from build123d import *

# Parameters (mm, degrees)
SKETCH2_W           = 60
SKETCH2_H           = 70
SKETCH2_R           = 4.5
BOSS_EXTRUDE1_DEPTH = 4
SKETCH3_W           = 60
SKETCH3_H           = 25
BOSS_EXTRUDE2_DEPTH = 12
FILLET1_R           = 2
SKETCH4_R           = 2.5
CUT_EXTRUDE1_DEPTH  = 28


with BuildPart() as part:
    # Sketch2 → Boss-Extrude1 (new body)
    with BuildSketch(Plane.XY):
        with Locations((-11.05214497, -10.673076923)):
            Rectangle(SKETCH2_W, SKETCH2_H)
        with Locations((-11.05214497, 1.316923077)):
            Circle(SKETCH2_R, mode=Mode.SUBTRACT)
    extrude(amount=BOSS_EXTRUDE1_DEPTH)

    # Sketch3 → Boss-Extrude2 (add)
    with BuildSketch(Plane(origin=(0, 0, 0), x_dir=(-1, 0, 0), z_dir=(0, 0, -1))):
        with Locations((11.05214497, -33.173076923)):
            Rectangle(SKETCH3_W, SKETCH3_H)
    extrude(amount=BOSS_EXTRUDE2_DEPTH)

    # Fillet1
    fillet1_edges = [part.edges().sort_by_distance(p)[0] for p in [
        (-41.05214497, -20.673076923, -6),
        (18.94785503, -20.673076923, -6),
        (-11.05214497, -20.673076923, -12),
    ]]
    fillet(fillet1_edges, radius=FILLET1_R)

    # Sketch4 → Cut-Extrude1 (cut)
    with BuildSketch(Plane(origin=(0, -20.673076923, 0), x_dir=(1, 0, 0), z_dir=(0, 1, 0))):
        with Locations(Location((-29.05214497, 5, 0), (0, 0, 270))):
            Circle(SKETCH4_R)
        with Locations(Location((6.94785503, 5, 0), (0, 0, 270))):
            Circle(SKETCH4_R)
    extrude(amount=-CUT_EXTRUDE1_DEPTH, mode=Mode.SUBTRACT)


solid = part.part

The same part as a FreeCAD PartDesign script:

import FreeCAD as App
import Part
import Sketcher
from FreeCAD import Vector


def edges_at(feature, points):
    """Names of the edges that pass closest to the given points."""
    edges = feature.Shape.Edges
    near = lambda p: min(range(len(edges)), key=lambda i: edges[i].distToShape(Part.Vertex(*p))[0])
    return sorted({f"Edge{near(p) + 1}" for p in points})


def add_polygon(sketch, points):
    """Adds a closed chain of lines whose ends are joined by coincident constraints."""
    first, n = sketch.GeometryCount, len(points)
    for a, b in zip(points, points[1:] + points[:1]):
        sketch.addGeometry(Part.LineSegment(App.Vector(*a, 0), App.Vector(*b, 0)), False)
    for i in range(n):
        sketch.addConstraint(Sketcher.Constraint("Coincident", first + i, 2, first + (i + 1) % n, 1))

doc = App.newDocument("Part")
body = doc.addObject("PartDesign::Body", "Body")

# Sketch on XY plane
sketch1 = body.newObject("Sketcher::SketchObject", "Sketch")
sketch1.AttachmentSupport = (doc.getObject("XY_Plane"), [""])
sketch1.MapMode = "FlatFace"
add_polygon(sketch1, [(-41.1, 24.3), (-41.1, -45.7), (18.9, -45.7), (18.9, 24.3)])  # lines 0-3
sketch1.addGeometry(Part.Circle(Vector(-11.1, 1.3, 0), Vector(0, 0, 1), 4.5), False)  # 4
sketch1.addConstraint(Sketcher.Constraint("Vertical", 0))
sketch1.addConstraint(Sketcher.Constraint("Horizontal", 1))
sketch1.addConstraint(Sketcher.Constraint("Vertical", 2))
sketch1.addConstraint(Sketcher.Constraint("Horizontal", 3))
sketch1.addConstraint(Sketcher.Constraint("Diameter", 4, 9.0))
sketch1.addConstraint(Sketcher.Constraint("DistanceX", 1, 1, 1, 2, 60.0))
sketch1.addConstraint(Sketcher.Constraint("DistanceY", 0, 2, 0, 1, 70.0))
sketch1.addConstraint(Sketcher.Constraint("DistanceX", 0, 2, 4, 3, 30.0))
sketch1.addConstraint(Sketcher.Constraint("DistanceY", 0, 2, 4, 3, 46.99))
sketch1.addConstraint(Sketcher.Constraint("DistanceX", 4, 3, -1, 1, 11.052145))
sketch1.addConstraint(Sketcher.Constraint("DistanceY", -1, 1, 4, 3, 1.316923))
pad1 = body.newObject("PartDesign::Pad", "Pad")
pad1.Profile = sketch1
pad1.Length = 4

# Sketch on XY plane
sketch2 = body.newObject("Sketcher::SketchObject", "Sketch001")
sketch2.AttachmentSupport = (doc.getObject("XY_Plane"), [""])
sketch2.MapMode = "FlatFace"
add_polygon(sketch2, [(19, -21), (19, -46), (-41, -46), (-41, -21)])  # lines 0-3
sketch2.addConstraint(Sketcher.Constraint("Vertical", 0))
sketch2.addConstraint(Sketcher.Constraint("Horizontal", 1))
sketch2.addConstraint(Sketcher.Constraint("Vertical", 2))
sketch2.addConstraint(Sketcher.Constraint("Horizontal", 3))
sketch2.addConstraint(Sketcher.Constraint("DistanceX", 1, 2, 1, 1, 60.0))
sketch2.addConstraint(Sketcher.Constraint("DistanceY", 0, 2, 0, 1, 25.0))
sketch2.addConstraint(Sketcher.Constraint("DistanceX", -1, 1, 0, 2, 18.947855))
sketch2.addConstraint(Sketcher.Constraint("DistanceY", 0, 2, -1, 1, 45.673077))
pad2 = body.newObject("PartDesign::Pad", "Pad001")
pad2.Profile = sketch2
pad2.Length = 12
pad2.Reversed = True
doc.recompute()

fillet = body.newObject("PartDesign::Fillet", "Fillet")
fillet.Base = (pad2, edges_at(pad2, [(-41.052, -20.673, -6), (18.948, -20.673, -6), (-11.052, -20.673, -12)]))
fillet.Radius = 2

# Sketch on XZ plane
sketch3 = body.newObject("Sketcher::SketchObject", "Sketch002")
sketch3.AttachmentSupport = (doc.getObject("XZ_Plane"), [""])
sketch3.MapMode = "FlatFace"
sketch3.AttachmentOffset = App.Placement(Vector(0, 0, 20.673077), App.Rotation())
sketch3.addGeometry(Part.Circle(Vector(-29.1, -5, 0), Vector(0, 0, 1), 2.5), False)
sketch3.addGeometry(Part.Circle(Vector(6.9, -5, 0), Vector(0, 0, 1), 2.5), False)
sketch3.addConstraint(Sketcher.Constraint("Equal", 0, 1))
sketch3.addConstraint(Sketcher.Constraint("Horizontal", 0, 3, 1, 3))
sketch3.addConstraint(Sketcher.Constraint("Diameter", 0, 5.0))
sketch3.addConstraint(Sketcher.Constraint("DistanceY", 0, 3, -1, 1, 5.0))
sketch3.addConstraint(Sketcher.Constraint("DistanceX", 0, 3, 1, 3, 36.0))
sketch3.addConstraint(Sketcher.Constraint("DistanceX", 0, 3, -1, 1, 29.052145))
pocket1 = body.newObject("PartDesign::Pocket", "Pocket")
pocket1.Profile = sketch3
pocket1.Length = 28
pocket1.Reversed = True

doc.recompute()
